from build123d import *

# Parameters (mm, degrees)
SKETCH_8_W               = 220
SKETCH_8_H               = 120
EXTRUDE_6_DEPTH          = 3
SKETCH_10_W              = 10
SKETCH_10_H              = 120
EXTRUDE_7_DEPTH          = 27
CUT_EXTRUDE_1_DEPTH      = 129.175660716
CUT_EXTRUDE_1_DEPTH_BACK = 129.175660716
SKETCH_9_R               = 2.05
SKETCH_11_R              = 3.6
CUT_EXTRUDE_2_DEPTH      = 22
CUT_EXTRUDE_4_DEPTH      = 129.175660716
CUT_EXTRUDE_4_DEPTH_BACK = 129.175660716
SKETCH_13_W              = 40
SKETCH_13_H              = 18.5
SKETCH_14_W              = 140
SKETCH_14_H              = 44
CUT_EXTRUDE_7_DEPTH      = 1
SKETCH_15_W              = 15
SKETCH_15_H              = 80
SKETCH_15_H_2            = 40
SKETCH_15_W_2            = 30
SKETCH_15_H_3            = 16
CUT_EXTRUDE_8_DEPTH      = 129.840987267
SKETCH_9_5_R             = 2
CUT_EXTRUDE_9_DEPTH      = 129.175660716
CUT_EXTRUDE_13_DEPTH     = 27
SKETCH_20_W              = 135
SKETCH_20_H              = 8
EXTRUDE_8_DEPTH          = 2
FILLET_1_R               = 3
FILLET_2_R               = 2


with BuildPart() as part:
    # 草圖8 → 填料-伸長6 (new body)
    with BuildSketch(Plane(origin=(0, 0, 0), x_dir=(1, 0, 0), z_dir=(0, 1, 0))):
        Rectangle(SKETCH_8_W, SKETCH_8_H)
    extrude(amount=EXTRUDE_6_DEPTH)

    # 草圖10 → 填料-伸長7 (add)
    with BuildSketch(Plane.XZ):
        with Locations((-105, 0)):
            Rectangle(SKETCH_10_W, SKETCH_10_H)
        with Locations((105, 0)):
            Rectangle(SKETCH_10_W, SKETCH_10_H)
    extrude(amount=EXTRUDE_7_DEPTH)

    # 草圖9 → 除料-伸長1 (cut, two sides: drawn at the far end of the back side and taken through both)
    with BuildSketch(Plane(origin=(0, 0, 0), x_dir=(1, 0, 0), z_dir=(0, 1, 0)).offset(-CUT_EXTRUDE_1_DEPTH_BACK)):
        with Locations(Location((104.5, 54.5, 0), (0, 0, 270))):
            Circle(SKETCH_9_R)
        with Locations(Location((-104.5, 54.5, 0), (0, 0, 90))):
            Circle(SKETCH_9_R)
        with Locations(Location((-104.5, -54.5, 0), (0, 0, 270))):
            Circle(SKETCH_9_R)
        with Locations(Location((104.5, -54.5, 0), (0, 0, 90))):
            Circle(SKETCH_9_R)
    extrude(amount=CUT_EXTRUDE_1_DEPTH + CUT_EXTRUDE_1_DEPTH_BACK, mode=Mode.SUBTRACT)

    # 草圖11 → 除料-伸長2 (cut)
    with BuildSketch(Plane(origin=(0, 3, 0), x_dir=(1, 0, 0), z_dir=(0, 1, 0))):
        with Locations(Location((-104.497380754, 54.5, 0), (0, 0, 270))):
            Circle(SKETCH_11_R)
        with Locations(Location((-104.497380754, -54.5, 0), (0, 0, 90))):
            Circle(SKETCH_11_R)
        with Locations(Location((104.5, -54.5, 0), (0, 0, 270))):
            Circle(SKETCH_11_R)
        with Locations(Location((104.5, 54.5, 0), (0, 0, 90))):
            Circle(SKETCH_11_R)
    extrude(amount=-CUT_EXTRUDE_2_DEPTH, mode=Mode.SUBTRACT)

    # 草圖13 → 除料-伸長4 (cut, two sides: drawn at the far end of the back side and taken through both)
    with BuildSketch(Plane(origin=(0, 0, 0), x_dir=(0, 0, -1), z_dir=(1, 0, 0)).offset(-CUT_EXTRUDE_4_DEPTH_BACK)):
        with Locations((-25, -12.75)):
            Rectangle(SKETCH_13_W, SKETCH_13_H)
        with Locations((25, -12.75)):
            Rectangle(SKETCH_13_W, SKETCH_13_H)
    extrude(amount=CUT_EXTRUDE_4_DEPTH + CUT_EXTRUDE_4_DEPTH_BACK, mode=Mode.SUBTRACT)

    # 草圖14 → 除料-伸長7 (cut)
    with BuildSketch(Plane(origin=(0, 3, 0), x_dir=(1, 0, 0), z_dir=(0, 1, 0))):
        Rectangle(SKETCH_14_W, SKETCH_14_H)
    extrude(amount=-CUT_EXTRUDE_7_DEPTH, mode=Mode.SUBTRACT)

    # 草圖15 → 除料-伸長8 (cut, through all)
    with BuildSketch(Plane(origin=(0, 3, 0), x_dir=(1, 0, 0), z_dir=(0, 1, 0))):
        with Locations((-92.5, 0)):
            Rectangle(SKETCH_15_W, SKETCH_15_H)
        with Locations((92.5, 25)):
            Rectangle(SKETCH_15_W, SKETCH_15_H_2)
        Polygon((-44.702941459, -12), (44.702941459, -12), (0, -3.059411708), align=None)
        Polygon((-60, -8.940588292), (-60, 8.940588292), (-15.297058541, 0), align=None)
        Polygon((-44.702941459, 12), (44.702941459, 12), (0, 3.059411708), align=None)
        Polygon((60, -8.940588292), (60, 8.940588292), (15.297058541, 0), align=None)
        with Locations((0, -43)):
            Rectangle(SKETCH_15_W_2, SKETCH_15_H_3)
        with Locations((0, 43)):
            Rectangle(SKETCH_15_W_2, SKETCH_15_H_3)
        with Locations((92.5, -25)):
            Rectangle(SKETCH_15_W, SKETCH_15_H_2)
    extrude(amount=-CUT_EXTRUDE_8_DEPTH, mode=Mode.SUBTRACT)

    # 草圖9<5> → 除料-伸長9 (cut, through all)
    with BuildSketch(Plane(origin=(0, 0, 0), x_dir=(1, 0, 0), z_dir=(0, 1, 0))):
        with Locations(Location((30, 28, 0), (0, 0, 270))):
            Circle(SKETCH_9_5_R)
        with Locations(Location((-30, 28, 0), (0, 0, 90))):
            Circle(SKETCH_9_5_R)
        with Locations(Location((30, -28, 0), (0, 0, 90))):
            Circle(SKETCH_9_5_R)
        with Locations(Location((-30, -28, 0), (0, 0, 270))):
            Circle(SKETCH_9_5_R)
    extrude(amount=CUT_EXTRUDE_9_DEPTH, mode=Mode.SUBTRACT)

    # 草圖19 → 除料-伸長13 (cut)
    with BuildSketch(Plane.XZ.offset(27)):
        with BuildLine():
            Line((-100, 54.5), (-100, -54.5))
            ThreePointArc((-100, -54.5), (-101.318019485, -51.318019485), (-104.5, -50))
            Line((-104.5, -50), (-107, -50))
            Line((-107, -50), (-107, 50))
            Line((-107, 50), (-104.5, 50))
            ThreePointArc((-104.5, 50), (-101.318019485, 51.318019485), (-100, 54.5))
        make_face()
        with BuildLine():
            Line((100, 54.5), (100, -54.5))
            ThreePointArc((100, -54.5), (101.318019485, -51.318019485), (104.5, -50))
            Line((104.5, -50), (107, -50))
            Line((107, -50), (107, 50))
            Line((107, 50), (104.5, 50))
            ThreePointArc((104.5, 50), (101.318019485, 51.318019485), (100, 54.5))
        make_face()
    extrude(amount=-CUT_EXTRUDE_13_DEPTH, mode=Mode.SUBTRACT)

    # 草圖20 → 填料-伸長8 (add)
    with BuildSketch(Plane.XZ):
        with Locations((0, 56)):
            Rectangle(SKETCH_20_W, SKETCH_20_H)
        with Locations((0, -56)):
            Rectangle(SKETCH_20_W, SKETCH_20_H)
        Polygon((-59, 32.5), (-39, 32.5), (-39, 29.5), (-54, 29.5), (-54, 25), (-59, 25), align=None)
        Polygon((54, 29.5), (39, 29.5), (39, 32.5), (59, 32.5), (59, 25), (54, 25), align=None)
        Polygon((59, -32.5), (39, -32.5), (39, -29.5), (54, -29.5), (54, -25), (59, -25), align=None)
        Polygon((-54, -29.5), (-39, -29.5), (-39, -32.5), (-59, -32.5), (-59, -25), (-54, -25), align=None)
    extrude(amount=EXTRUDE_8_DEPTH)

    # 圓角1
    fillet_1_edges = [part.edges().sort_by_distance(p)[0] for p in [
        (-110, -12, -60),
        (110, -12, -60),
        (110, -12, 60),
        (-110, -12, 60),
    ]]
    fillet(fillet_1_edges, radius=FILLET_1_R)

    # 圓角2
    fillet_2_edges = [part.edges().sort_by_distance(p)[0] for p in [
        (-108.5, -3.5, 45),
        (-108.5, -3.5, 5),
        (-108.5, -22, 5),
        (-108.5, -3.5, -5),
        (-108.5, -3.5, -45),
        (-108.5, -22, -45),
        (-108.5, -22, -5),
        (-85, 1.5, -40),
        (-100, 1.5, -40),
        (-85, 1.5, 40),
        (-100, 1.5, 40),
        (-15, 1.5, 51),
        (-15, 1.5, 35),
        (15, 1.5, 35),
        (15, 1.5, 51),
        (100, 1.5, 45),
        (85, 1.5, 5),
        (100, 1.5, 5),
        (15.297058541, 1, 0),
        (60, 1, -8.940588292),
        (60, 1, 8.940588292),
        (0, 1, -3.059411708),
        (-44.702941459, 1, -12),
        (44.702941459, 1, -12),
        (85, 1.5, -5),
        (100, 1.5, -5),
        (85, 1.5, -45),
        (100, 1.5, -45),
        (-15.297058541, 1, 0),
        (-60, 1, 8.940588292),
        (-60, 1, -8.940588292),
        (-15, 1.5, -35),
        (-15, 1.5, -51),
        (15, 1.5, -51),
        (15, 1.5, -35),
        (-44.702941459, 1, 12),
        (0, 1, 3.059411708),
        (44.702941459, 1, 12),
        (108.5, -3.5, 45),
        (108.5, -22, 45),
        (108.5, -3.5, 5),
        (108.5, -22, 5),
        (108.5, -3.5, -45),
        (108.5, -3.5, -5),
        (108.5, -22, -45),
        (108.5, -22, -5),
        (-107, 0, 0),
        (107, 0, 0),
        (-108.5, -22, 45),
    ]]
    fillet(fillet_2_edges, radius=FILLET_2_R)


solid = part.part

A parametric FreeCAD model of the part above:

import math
import FreeCAD as App
import Part
import Sketcher


def edges_at(feature, points):
    """Names of the edges that pass closest to the given points."""
    edges = feature.Shape.Edges
    near = lambda p: min(range(len(edges)), key=lambda i: edges[i].distToShape(Part.Vertex(*p))[0])
    return sorted({f"Edge{near(p) + 1}" for p in points})

doc = App.newDocument("Part")
params = doc.addObject("Spreadsheet::Sheet", "Params")
for row, (alias, value) in enumerate([
    ("sketch1_width", "220 mm"),
    ("sketch1_height", "120 mm"),
    ("pad1_length", "3 mm"),
    ("sketch2_width", "10 mm"),
    ("sketch2_height", "120 mm"),
    ("pad2_length", "27 mm"),
    ("sketch3_diameter", "4.1 mm"),
    ("sketch4_diameter", "7.2 mm"),
    ("pocket2_length", "22 mm"),
    ("sketch5_height", "40 mm"),
    ("sketch5_width", "18.5 mm"),
    ("sketch6_width", "140 mm"),
    ("sketch6_height", "44 mm"),
    ("pocket4_length", "1 mm"),
    ("sketch7_width", "15 mm"),
    ("sketch7_width2", "30 mm"),
    ("sketch7_height", "80 mm"),
    ("sketch7_height2", "40 mm"),
    ("sketch7_height3", "16 mm"),
    ("sketch8_diameter", "4 mm"),
    ("sketch9_radius", "4.5 mm"),
    ("sketch9_height", "109 mm"),
    ("sketch9_width", "2.5 mm"),
    ("pocket7_length", "27 mm"),
    ("sketch10_width", "135 mm"),
    ("sketch10_width2", "20 mm"),
    ("sketch10_width3", "5 mm"),
    ("sketch10_height", "8 mm"),
    ("sketch10_height2", "3 mm"),
    ("pad3_length", "2 mm"),
    ("fillet_radius", "3 mm"),
    ("fillet2_radius", "2 mm"),
], start=1):
    params.set(f"A{row}", alias)
    params.set(f"B{row}", "=" + value)
    params.setAlias(f"B{row}", alias)

body = doc.addObject("PartDesign::Body", "Body")

# Sketch on XZ plane
sketch1 = doc.addObject("Sketcher::SketchObject", "Sketch")
body.addObject(sketch1)
sketch1.AttachmentSupport = (doc.XZ_Plane, [""])
sketch1.MapMode = "FlatFace"
sketch1.addGeometry([
    Part.LineSegment(App.Vector(-110, -60, 0), App.Vector(-110, 60, 0)),
    Part.LineSegment(App.Vector(-110, 60, 0), App.Vector(110, 60, 0)),
    Part.LineSegment(App.Vector(110, 60, 0), App.Vector(110, -60, 0)),
    Part.LineSegment(App.Vector(110, -60, 0), App.Vector(-110, -60, 0)),
], False)
sketch1.addConstraint([
    Sketcher.Constraint("Coincident", 0, 2, 1, 1),
    Sketcher.Constraint("Coincident", 1, 2, 2, 1),
    Sketcher.Constraint("Coincident", 2, 2, 3, 1),
    Sketcher.Constraint("Coincident", 3, 2, 0, 1),
    Sketcher.Constraint("Vertical", 0),
    Sketcher.Constraint("Horizontal", 1),
    Sketcher.Constraint("Vertical", 2),
    Sketcher.Constraint("Horizontal", 3),
    Sketcher.Constraint("Symmetric", 0, 2, 2, 2, -1, 1),
    Sketcher.Constraint("DistanceX", 1, 1, 1, 2, 220.0),
    Sketcher.Constraint("DistanceY", 0, 1, 0, 2, 120.0),
])
sketch1.setExpression("Constraints[9]", "Params.sketch1_width")
sketch1.setExpression("Constraints[10]", "Params.sketch1_height")
pad1 = doc.addObject("PartDesign::Pad", "Pad")
body.addObject(pad1)
pad1.Profile = sketch1
pad1.setExpression("Length", "Params.pad1_length")
pad1.Reversed = True

# Sketch on XZ plane
sketch2 = doc.addObject("Sketcher::SketchObject", "Sketch001")
body.addObject(sketch2)
sketch2.AttachmentSupport = (doc.XZ_Plane, [""])
sketch2.MapMode = "FlatFace"
sketch2.addGeometry([
    Part.LineSegment(App.Vector(-110, 60, 0), App.Vector(-110, -60, 0)),  # 0
    Part.LineSegment(App.Vector(-110, -60, 0), App.Vector(-100, -60, 0)),  # 1
    Part.LineSegment(App.Vector(-100, -60, 0), App.Vector(-100, 60, 0)),  # 2
    Part.LineSegment(App.Vector(-100, 60, 0), App.Vector(-110, 60, 0)),  # 3
    Part.LineSegment(App.Vector(100, 60, 0), App.Vector(100, -60, 0)),  # 4
    Part.LineSegment(App.Vector(100, -60, 0), App.Vector(110, -60, 0)),  # 5
    Part.LineSegment(App.Vector(110, -60, 0), App.Vector(110, 60, 0)),  # 6
    Part.LineSegment(App.Vector(110, 60, 0), App.Vector(100, 60, 0)),  # 7
], False)
sketch2.addConstraint([
    Sketcher.Constraint("Coincident", 0, 2, 1, 1),
    Sketcher.Constraint("Coincident", 1, 2, 2, 1),
    Sketcher.Constraint("Coincident", 2, 2, 3, 1),
    Sketcher.Constraint("Coincident", 3, 2, 0, 1),
    Sketcher.Constraint("Coincident", 4, 2, 5, 1),
    Sketcher.Constraint("Coincident", 5, 2, 6, 1),
    Sketcher.Constraint("Coincident", 6, 2, 7, 1),
    Sketcher.Constraint("Coincident", 7, 2, 4, 1),
    Sketcher.Constraint("Vertical", 0),
    Sketcher.Constraint("Horizontal", 1),
    Sketcher.Constraint("Vertical", 2),
    Sketcher.Constraint("Horizontal", 3),
    Sketcher.Constraint("Vertical", 4),
    Sketcher.Constraint("Horizontal", 5),
    Sketcher.Constraint("Vertical", 6),
    Sketcher.Constraint("Horizontal", 7),
    Sketcher.Constraint("Symmetric", 2, 2, 4, 2, -1, 1),
    Sketcher.Constraint("Symmetric", 0, 2, 6, 2, -1, 1),
    Sketcher.Constraint("Horizontal", 1, 2, 4, 2),
    Sketcher.Constraint("DistanceX", 1, 1, 1, 2, 10.0),
    Sketcher.Constraint("DistanceY", 0, 2, 0, 1, 120.0),
    Sketcher.Constraint("DistanceX", 0, 2, -1, 1, 110.0),
])
sketch2.setExpression("Constraints[19]", "Params.sketch2_width")
sketch2.setExpression("Constraints[20]", "Params.sketch2_height")
pad2 = doc.addObject("PartDesign::Pad", "Pad001")
body.addObject(pad2)
pad2.Profile = sketch2
pad2.setExpression("Length", "Params.pad2_length")

# Sketch on XZ plane
sketch3 = doc.addObject("Sketcher::SketchObject", "Sketch002")
body.addObject(sketch3)
sketch3.AttachmentSupport = (doc.XZ_Plane, [""])
sketch3.MapMode = "FlatFace"
sketch3.addGeometry([
    Part.Circle(App.Vector(104.5, -54.5, 0), App.Vector(0, 0, 1), 2),
    Part.Circle(App.Vector(-104.5, -54.5, 0), App.Vector(0, 0, 1), 2),
    Part.Circle(App.Vector(-104.5, 54.5, 0), App.Vector(0, 0, 1), 2),
    Part.Circle(App.Vector(104.5, 54.5, 0), App.Vector(0, 0, 1), 2),
], False)
sketch3.addConstraint([
    Sketcher.Constraint("Equal", 0, 1),
    Sketcher.Constraint("Equal", 1, 2),
    Sketcher.Constraint("Equal", 2, 3),
    Sketcher.Constraint("Symmetric", 0, 3, 2, 3, -1, 1),
    Sketcher.Constraint("Symmetric", 1, 3, 3, 3, -1, 1),
    Sketcher.Constraint("Symmetric", 0, 3, 1, 3, -2),
    Sketcher.Constraint("Diameter", 0, 4.1),
    Sketcher.Constraint("DistanceX", 1, 3, 0, 3, 209.0),
    Sketcher.Constraint("DistanceY", 1, 3, 2, 3, 109.0),
])
sketch3.setExpression("Constraints[6]", "Params.sketch3_diameter")
pocket1 = doc.addObject("PartDesign::Pocket", "Pocket")
body.addObject(pocket1)
pocket1.Profile = sketch3
pocket1.Type = "ThroughAll"
pocket1.Midplane = True

# Sketch on XZ plane
sketch4 = doc.addObject("Sketcher::SketchObject", "Sketch003")
body.addObject(sketch4)
sketch4.AttachmentSupport = (doc.XZ_Plane, [""])
sketch4.MapMode = "FlatFace"
sketch4.AttachmentOffset = App.Placement(App.Vector(0, 0, -3), App.Rotation())
sketch4.addGeometry([
    Part.Circle(App.Vector(-104.5, -54.5, 0), App.Vector(0, 0, 1), 3.6),
    Part.Circle(App.Vector(-104.5, 54.5, 0), App.Vector(0, 0, 1), 3.6),
    Part.Circle(App.Vector(104.5, 54.5, 0), App.Vector(0, 0, 1), 3.6),
    Part.Circle(App.Vector(104.5, -54.5, 0), App.Vector(0, 0, 1), 3.6),
], False)
sketch4.addConstraint([
    Sketcher.Constraint("Equal", 0, 1),
    Sketcher.Constraint("Equal", 1, 2),
    Sketcher.Constraint("Equal", 2, 3),
    Sketcher.Constraint("Symmetric", 0, 3, 1, 3, -1),
    Sketcher.Constraint("Symmetric", 2, 3, 3, 3, -1),
    Sketcher.Constraint("Horizontal", 1, 3, 2, 3),
    Sketcher.Constraint("Diameter", 0, 7.2),
    Sketcher.Constraint("DistanceY", 0, 3, 1, 3, 109.0),
    Sketcher.Constraint("DistanceX", -1, 1, 2, 3, 104.5),
    Sketcher.Constraint("DistanceX", 0, 3, -1, 1, 104.497381),
])
sketch4.setExpression("Constraints[6]", "Params.sketch4_diameter")
pocket2 = doc.addObject("PartDesign::Pocket", "Pocket001")
body.addObject(pocket2)
pocket2.Profile = sketch4
pocket2.setExpression("Length", "Params.pocket2_length")
pocket2.Reversed = True

# Sketch on YZ plane
sketch5 = doc.addObject("Sketcher::SketchObject", "Sketch004")
body.addObject(sketch5)
sketch5.AttachmentSupport = (doc.YZ_Plane, [""])
sketch5.MapMode = "FlatFace"
sketch5.addGeometry([
    Part.LineSegment(App.Vector(-4, 45, 0), App.Vector(-22, 45, 0)),  # 0
    Part.LineSegment(App.Vector(-22, 45, 0), App.Vector(-22, 5, 0)),  # 1
    Part.LineSegment(App.Vector(-22, 5, 0), App.Vector(-4, 5, 0)),  # 2
    Part.LineSegment(App.Vector(-4, 5, 0), App.Vector(-4, 45, 0)),  # 3
    Part.LineSegment(App.Vector(-4, -5, 0), App.Vector(-22, -5, 0)),  # 4
    Part.LineSegment(App.Vector(-22, -5, 0), App.Vector(-22, -45, 0)),  # 5
    Part.LineSegment(App.Vector(-22, -45, 0), App.Vector(-4, -45, 0)),  # 6
    Part.LineSegment(App.Vector(-4, -45, 0), App.Vector(-4, -5, 0)),  # 7
], False)
sketch5.addConstraint([
    Sketcher.Constraint("Coincident", 0, 2, 1, 1),
    Sketcher.Constraint("Coincident", 1, 2, 2, 1),
    Sketcher.Constraint("Coincident", 2, 2, 3, 1),
    Sketcher.Constraint("Coincident", 3, 2, 0, 1),
    Sketcher.Constraint("Coincident", 4, 2, 5, 1),
    Sketcher.Constraint("Coincident", 5, 2, 6, 1),
    Sketcher.Constraint("Coincident", 6, 2, 7, 1),
    Sketcher.Constraint("Coincident", 7, 2, 4, 1),
    Sketcher.Constraint("Horizontal", 0),
    Sketcher.Constraint("Vertical", 1),
    Sketcher.Constraint("Horizontal", 2),
    Sketcher.Constraint("Vertical", 3),
    Sketcher.Constraint("Horizontal", 4),
    Sketcher.Constraint("Vertical", 5),
    Sketcher.Constraint("Horizontal", 6),
    Sketcher.Constraint("Vertical", 7),
    Sketcher.Constraint("Symmetric", 1, 2, 4, 2, -1),
    Sketcher.Constraint("Symmetric", 3, 2, 6, 2, -1),
    Sketcher.Constraint("DistanceY", 1, 2, 1, 1, 40.0),
    Sketcher.Constraint("DistanceX", 0, 2, 0, 1, 18.5),
    Sketcher.Constraint("DistanceX", 0, 2, -1, 1, 22.0),
    Sketcher.Constraint("DistanceY", -1, 1, 0, 2, 45.0),
])
sketch5.setExpression("Constraints[18]", "Params.sketch5_height")
sketch5.setExpression("Constraints[19]", "Params.sketch5_width")
pocket3 = doc.addObject("PartDesign::Pocket", "Pocket002")
body.addObject(pocket3)
pocket3.Profile = sketch5
pocket3.Type = "ThroughAll"
pocket3.Midplane = True

# Sketch on XZ plane
sketch6 = doc.addObject("Sketcher::SketchObject", "Sketch005")
body.addObject(sketch6)
sketch6.AttachmentSupport = (doc.XZ_Plane, [""])
sketch6.MapMode = "FlatFace"
sketch6.AttachmentOffset = App.Placement(App.Vector(0, 0, -3), App.Rotation())
sketch6.addGeometry([
    Part.LineSegment(App.Vector(-70, -22, 0), App.Vector(-70, 22, 0)),
    Part.LineSegment(App.Vector(-70, 22, 0), App.Vector(70, 22, 0)),
    Part.LineSegment(App.Vector(70, 22, 0), App.Vector(70, -22, 0)),
    Part.LineSegment(App.Vector(70, -22, 0), App.Vector(-70, -22, 0)),
], False)
sketch6.addConstraint([
    Sketcher.Constraint("Coincident", 0, 2, 1, 1),
    Sketcher.Constraint("Coincident", 1, 2, 2, 1),
    Sketcher.Constraint("Coincident", 2, 2, 3, 1),
    Sketcher.Constraint("Coincident", 3, 2, 0, 1),
    Sketcher.Constraint("Vertical", 0),
    Sketcher.Constraint("Horizontal", 1),
    Sketcher.Constraint("Vertical", 2),
    Sketcher.Constraint("Horizontal", 3),
    Sketcher.Constraint("Symmetric", 0, 2, 2, 2, -1, 1),
    Sketcher.Constraint("DistanceX", 1, 1, 1, 2, 140.0),
    Sketcher.Constraint("DistanceY", 0, 1, 0, 2, 44.0),
])
sketch6.setExpression("Constraints[9]", "Params.sketch6_width")
sketch6.setExpression("Constraints[10]", "Params.sketch6_height")
pocket4 = doc.addObject("PartDesign::Pocket", "Pocket003")
body.addObject(pocket4)
pocket4.Profile = sketch6
pocket4.setExpression("Length", "Params.pocket4_length")
pocket4.Reversed = True

# Sketch on XZ plane
sketch7 = doc.addObject("Sketcher::SketchObject", "Sketch006")
body.addObject(sketch7)
sketch7.AttachmentSupport = (doc.XZ_Plane, [""])
sketch7.MapMode = "FlatFace"
sketch7.AttachmentOffset = App.Placement(App.Vector(0, 0, -3), App.Rotation())
sketch7.addGeometry([
    Part.LineSegment(App.Vector(-100, -40, 0), App.Vector(-100, 40, 0)),  # 0
    Part.LineSegment(App.Vector(-100, 40, 0), App.Vector(-85, 40, 0)),  # 1
    Part.LineSegment(App.Vector(-85, 40, 0), App.Vector(-85, -40, 0)),  # 2
    Part.LineSegment(App.Vector(-85, -40, 0), App.Vector(-100, -40, 0)),  # 3
    Part.LineSegment(App.Vector(85, -45, 0), App.Vector(85, -5, 0)),  # 4
    Part.LineSegment(App.Vector(85, -5, 0), App.Vector(100, -5, 0)),  # 5
    Part.LineSegment(App.Vector(100, -5, 0), App.Vector(100, -45, 0)),  # 6
    Part.LineSegment(App.Vector(100, -45, 0), App.Vector(85, -45, 0)),  # 7
    Part.LineSegment(App.Vector(-45, 12, 0), App.Vector(45, 12, 0)),  # 8
    Part.LineSegment(App.Vector(45, 12, 0), App.Vector(0, 3, 0)),  # 9
    Part.LineSegment(App.Vector(0, 3, 0), App.Vector(-45, 12, 0)),  # 10
    Part.LineSegment(App.Vector(-60, -9, 0), App.Vector(-60, 9, 0)),  # 11
    Part.LineSegment(App.Vector(-60, 9, 0), App.Vector(-15, 0, 0)),  # 12
    Part.LineSegment(App.Vector(-15, 0, 0), App.Vector(-60, -9, 0)),  # 13
    Part.LineSegment(App.Vector(45, -12, 0), App.Vector(-45, -12, 0)),  # 14
    Part.LineSegment(App.Vector(-45, -12, 0), App.Vector(0, -3, 0)),  # 15
    Part.LineSegment(App.Vector(0, -3, 0), App.Vector(45, -12, 0)),  # 16
    Part.LineSegment(App.Vector(60, 9, 0), App.Vector(60, -9, 0)),  # 17
    Part.LineSegment(App.Vector(60, -9, 0), App.Vector(15, 0, 0)),  # 18
    Part.LineSegment(App.Vector(15, 0, 0), App.Vector(60, 9, 0)),  # 19
    Part.LineSegment(App.Vector(-15, 35, 0), App.Vector(-15, 51, 0)),  # 20
    Part.LineSegment(App.Vector(-15, 51, 0), App.Vector(15, 51, 0)),  # 21
    Part.LineSegment(App.Vector(15, 51, 0), App.Vector(15, 35, 0)),  # 22
    Part.LineSegment(App.Vector(15, 35, 0), App.Vector(-15, 35, 0)),  # 23
    Part.LineSegment(App.Vector(-15, -51, 0), App.Vector(-15, -35, 0)),  # 24
    Part.LineSegment(App.Vector(-15, -35, 0), App.Vector(15, -35, 0)),  # 25
    Part.LineSegment(App.Vector(15, -35, 0), App.Vector(15, -51, 0)),  # 26
    Part.LineSegment(App.Vector(15, -51, 0), App.Vector(-15, -51, 0)),  # 27
    Part.LineSegment(App.Vector(85, 5, 0), App.Vector(85, 45, 0)),  # 28
    Part.LineSegment(App.Vector(85, 45, 0), App.Vector(100, 45, 0)),  # 29
    Part.LineSegment(App.Vector(100, 45, 0), App.Vector(100, 5, 0)),  # 30
    Part.LineSegment(App.Vector(100, 5, 0), App.Vector(85, 5, 0)),  # 31
], False)
sketch7.addConstraint([
    Sketcher.Constraint("Coincident", 0, 2, 1, 1),
    Sketcher.Constraint("Coincident", 1, 2, 2, 1),
    Sketcher.Constraint("Coincident", 2, 2, 3, 1),
    Sketcher.Constraint("Coincident", 3, 2, 0, 1),
    Sketcher.Constraint("Coincident", 4, 2, 5, 1),
    Sketcher.Constraint("Coincident", 5, 2, 6, 1),
    Sketcher.Constraint("Coincident", 6, 2, 7, 1),
    Sketcher.Constraint("Coincident", 7, 2, 4, 1),
    Sketcher.Constraint("Coincident", 8, 2, 9, 1),
    Sketcher.Constraint("Coincident", 9, 2, 10, 1),
    Sketcher.Constraint("Coincident", 10, 2, 8, 1),
    Sketcher.Constraint("Coincident", 11, 2, 12, 1),
    Sketcher.Constraint("Coincident", 12, 2, 13, 1),
    Sketcher.Constraint("Coincident", 13, 2, 11, 1),
    Sketcher.Constraint("Coincident", 14, 2, 15, 1),
    Sketcher.Constraint("Coincident", 15, 2, 16, 1),
    Sketcher.Constraint("Coincident", 16, 2, 14, 1),
    Sketcher.Constraint("Coincident", 17, 2, 18, 1),
    Sketcher.Constraint("Coincident", 18, 2, 19, 1),
    Sketcher.Constraint("Coincident", 19, 2, 17, 1),
    Sketcher.Constraint("Coincident", 20, 2, 21, 1),
    Sketcher.Constraint("Coincident", 21, 2, 22, 1),
    Sketcher.Constraint("Coincident", 22, 2, 23, 1),
    Sketcher.Constraint("Coincident", 23, 2, 20, 1),
    Sketcher.Constraint("Coincident", 24, 2, 25, 1),
    Sketcher.Constraint("Coincident", 25, 2, 26, 1),
    Sketcher.Constraint("Coincident", 26, 2, 27, 1),
    Sketcher.Constraint("Coincident", 27, 2, 24, 1),
    Sketcher.Constraint("Coincident", 28, 2, 29, 1),
    Sketcher.Constraint("Coincident", 29, 2, 30, 1),
    Sketcher.Constraint("Coincident", 30, 2, 31, 1),
    Sketcher.Constraint("Coincident", 31, 2, 28, 1),
    Sketcher.Constraint("Vertical", 0),
    Sketcher.Constraint("Horizontal", 1),
    Sketcher.Constraint("Vertical", 2),
    Sketcher.Constraint("Horizontal", 3),
    Sketcher.Constraint("Vertical", 4),
    Sketcher.Constraint("Horizontal", 5),
    Sketcher.Constraint("Vertical", 6),
    Sketcher.Constraint("Horizontal", 7),
    Sketcher.Constraint("Horizontal", 8),
    Sketcher.Constraint("Vertical", 11),
    Sketcher.Constraint("Horizontal", 14),
    Sketcher.Constraint("Vertical", 17),
    Sketcher.Constraint("Vertical", 20),
    Sketcher.Constraint("Horizontal", 21),
    Sketcher.Constraint("Vertical", 22),
    Sketcher.Constraint("Horizontal", 23),
    Sketcher.Constraint("Vertical", 24),
    Sketcher.Constraint("Horizontal", 25),
    Sketcher.Constraint("Vertical", 26),
    Sketcher.Constraint("Horizontal", 27),
    Sketcher.Constraint("Vertical", 28),
    Sketcher.Constraint("Horizontal", 29),
    Sketcher.Constraint("Vertical", 30),
    Sketcher.Constraint("Horizontal", 31),
    Sketcher.Constraint("Symmetric", 8, 2, 14, 2, -1, 1),
    Sketcher.Constraint("Symmetric", 9, 2, 15, 2, -1, 1),
    Sketcher.Constraint("Symmetric", 11, 2, 17, 2, -1, 1),
    Sketcher.Constraint("Symmetric", 12, 2, 18, 2, -1, 1),
    Sketcher.Constraint("Symmetric", 22, 2, 24, 2, -1, 1),
    Sketcher.Constraint("Symmetric", 20, 2, 26, 2, -1, 1),
    Sketcher.Constraint("Symmetric", 7, 2, 28, 2, -1),
    Sketcher.Constraint("Symmetric", 5, 2, 30, 2, -1),
    Sketcher.Constraint("PointOnObject", 9, 2, -2),
    Sketcher.Constraint("PointOnObject", 12, 2, -1),
    Sketcher.Constraint("Parallel", 10, 12),
    Sketcher.Constraint("Parallel", 9, 13),
    Sketcher.Constraint("Parallel", 12, 16),
    Sketcher.Constraint("Parallel", 15, 19),
    Sketcher.Constraint("Horizontal", 13, 2, 17, 2),
    Sketcher.Constraint("Vertical", 23, 2, 24, 2),
    Sketcher.Constraint("Equal", 3, 5),
    Sketcher.Constraint("Equal", 10, 12),
    Sketcher.Constraint("DistanceX", 1, 1, 1, 2, 15.0),
    Sketcher.Constraint("DistanceX", 21, 1, 21, 2, 30.0),
    Sketcher.Constraint("DistanceY", 0, 1, 0, 2, 80.0),
    Sketcher.Constraint("DistanceY", 4, 1, 4, 2, 40.0),
    Sketcher.Constraint("DistanceY", 20, 1, 20, 2, 16.0),
    Sketcher.Constraint("DistanceX", 0, 2, -1, 1, 100.0),
    Sketcher.Constraint("DistanceY", -1, 1, 0, 2, 40.0),
    Sketcher.Constraint("DistanceX", -1, 1, 4, 2, 85.0),
    Sketcher.Constraint("DistanceY", 4, 2, -1, 1, 5.0),
    Sketcher.Constraint("DistanceY", -1, 1, 8, 2, 12.0),
    Sketcher.Constraint("DistanceX", 11, 2, -1, 1, 60.0),
    Sketcher.Constraint("DistanceY", -1, 1, 20, 2, 51.0),
    Sketcher.Constraint("DistanceX", 8, 1, 8, 2, 89.405883),
    Sketcher.Constraint("DistanceY", 11, 1, 11, 2, 17.881177),
])
sketch7.setExpression("Constraints[74]", "Params.sketch7_width")
sketch7.setExpression("Constraints[75]", "Params.sketch7_width2")
sketch7.setExpression("Constraints[76]", "Params.sketch7_height")
sketch7.setExpression("Constraints[77]", "Params.sketch7_height2")
sketch7.setExpression("Constraints[78]", "Params.sketch7_height3")
pocket5 = doc.addObject("PartDesign::Pocket", "Pocket004")
body.addObject(pocket5)
pocket5.Profile = sketch7
pocket5.Type = "ThroughAll"
pocket5.Reversed = True

# Sketch on XZ plane
sketch8 = doc.addObject("Sketcher::SketchObject", "Sketch007")
body.addObject(sketch8)
sketch8.AttachmentSupport = (doc.XZ_Plane, [""])
sketch8.MapMode = "FlatFace"
sketch8.addGeometry([
    Part.Circle(App.Vector(30, -28, 0), App.Vector(0, 0, 1), 2),
    Part.Circle(App.Vector(-30, -28, 0), App.Vector(0, 0, 1), 2),
    Part.Circle(App.Vector(30, 28, 0), App.Vector(0, 0, 1), 2),
    Part.Circle(App.Vector(-30, 28, 0), App.Vector(0, 0, 1), 2),
], False)
sketch8.addConstraint([
    Sketcher.Constraint("Equal", 0, 1),
    Sketcher.Constraint("Equal", 1, 2),
    Sketcher.Constraint("Equal", 2, 3),
    Sketcher.Constraint("Symmetric", 1, 3, 2, 3, -1, 1),
    Sketcher.Constraint("Symmetric", 0, 3, 3, 3, -1, 1),
    Sketcher.Constraint("Symmetric", 0, 3, 1, 3, -2),
    Sketcher.Constraint("Diameter", 0, 4.0),
    Sketcher.Constraint("DistanceX", -1, 1, 0, 3, 30.0),
    Sketcher.Constraint("DistanceY", 0, 3, -1, 1, 28.0),
])
sketch8.setExpression("Constraints[6]", "Params.sketch8_diameter")
pocket6 = doc.addObject("PartDesign::Pocket", "Pocket005")
body.addObject(pocket6)
pocket6.Profile = sketch8
pocket6.Type = "ThroughAll"

# Sketch on XZ plane
sketch9 = doc.addObject("Sketcher::SketchObject", "Sketch008")
body.addObject(sketch9)
sketch9.AttachmentSupport = (doc.XZ_Plane, [""])
sketch9.MapMode = "FlatFace"
sketch9.AttachmentOffset = App.Placement(App.Vector(0, 0, 27), App.Rotation())
sketch9.addGeometry([
    Part.LineSegment(App.Vector(-100, -54.5, 0), App.Vector(-100, 54.5, 0)),  # 0
    Part.ArcOfCircle(Part.Circle(App.Vector(-104.5, 54.5, 0), App.Vector(0, 0, 1), 4.5), math.radians(-90), math.radians(0)),  # 1
    Part.LineSegment(App.Vector(-104.5, 50, 0), App.Vector(-107, 50, 0)),  # 2
    Part.LineSegment(App.Vector(-107, 50, 0), App.Vector(-107, -50, 0)),  # 3
    Part.LineSegment(App.Vector(-107, -50, 0), App.Vector(-104.5, -50, 0)),  # 4
    Part.ArcOfCircle(Part.Circle(App.Vector(-104.5, -54.5, 0), App.Vector(0, 0, 1), 4.5), math.radians(0), math.radians(90)),  # 5
    Part.LineSegment(App.Vector(100, 54.5, 0), App.Vector(100, -54.5, 0)),  # 6
    Part.ArcOfCircle(Part.Circle(App.Vector(104.5, -54.5, 0), App.Vector(0, 0, 1), 4.5), math.radians(90), math.radians(180)),  # 7
    Part.LineSegment(App.Vector(104.5, -50, 0), App.Vector(107, -50, 0)),  # 8
    Part.LineSegment(App.Vector(107, -50, 0), App.Vector(107, 50, 0)),  # 9
    Part.LineSegment(App.Vector(107, 50, 0), App.Vector(104.5, 50, 0)),  # 10
    Part.ArcOfCircle(Part.Circle(App.Vector(104.5, 54.5, 0), App.Vector(0, 0, 1), 4.5), math.radians(-180), math.radians(-90)),  # 11
], False)
sketch9.addConstraint([
    Sketcher.Constraint("Tangent", 0, 2, 1, 2),
    Sketcher.Constraint("Tangent", 1, 1, 2, 1),
    Sketcher.Constraint("Coincident", 2, 2, 3, 1),
    Sketcher.Constraint("Coincident", 3, 2, 4, 1),
    Sketcher.Constraint("Tangent", 4, 2, 5, 2),
    Sketcher.Constraint("Tangent", 5, 1, 0, 1),
    Sketcher.Constraint("Tangent", 6, 2, 7, 2),
    Sketcher.Constraint("Tangent", 7, 1, 8, 1),
    Sketcher.Constraint("Coincident", 8, 2, 9, 1),
    Sketcher.Constraint("Coincident", 9, 2, 10, 1),
    Sketcher.Constraint("Tangent", 10, 2, 11, 2),
    Sketcher.Constraint("Tangent", 11, 1, 6, 1),
    Sketcher.Constraint("Vertical", 0),
    Sketcher.Constraint("Horizontal", 2),
    Sketcher.Constraint("Vertical", 3),
    Sketcher.Constraint("Horizontal", 4),
    Sketcher.Constraint("Vertical", 6),
    Sketcher.Constraint("Horizontal", 8),
    Sketcher.Constraint("Vertical", 9),
    Sketcher.Constraint("Horizontal", 10),
    Sketcher.Constraint("Equal", 1, 5),
    Sketcher.Constraint("Equal", 5, 7),
    Sketcher.Constraint("Equal", 7, 11),
    Sketcher.Constraint("Symmetric", 1, 3, 7, 3, -1, 1),
    Sketcher.Constraint("Symmetric", 3, 2, 9, 2, -1, 1),
    Sketcher.Constraint("Horizontal", 5, 3, 7, 3),
    Sketcher.Constraint("Radius", 1, 4.5),
    Sketcher.Constraint("DistanceY", 0, 1, 0, 2, 109.0),
    Sketcher.Constraint("DistanceX", 2, 2, 2, 1, 2.5),
    Sketcher.Constraint("DistanceX", 0, 2, -1, 1, 100.0),
])
sketch9.setExpression("Constraints[26]", "Params.sketch9_radius")
sketch9.setExpression("Constraints[27]", "Params.sketch9_height")
sketch9.setExpression("Constraints[28]", "Params.sketch9_width")
pocket7 = doc.addObject("PartDesign::Pocket", "Pocket006")
body.addObject(pocket7)
pocket7.Profile = sketch9
pocket7.setExpression("Length", "Params.pocket7_length")

# Sketch on XZ plane
sketch10 = doc.addObject("Sketcher::SketchObject", "Sketch009")
body.addObject(sketch10)
sketch10.AttachmentSupport = (doc.XZ_Plane, [""])
sketch10.MapMode = "FlatFace"
sketch10.addGeometry([
    Part.LineSegment(App.Vector(-67.5, 60, 0), App.Vector(-67.5, 52, 0)),  # 0
    Part.LineSegment(App.Vector(-67.5, 52, 0), App.Vector(67.5, 52, 0)),  # 1
    Part.LineSegment(App.Vector(67.5, 52, 0), App.Vector(67.5, 60, 0)),  # 2
    Part.LineSegment(App.Vector(67.5, 60, 0), App.Vector(-67.5, 60, 0)),  # 3
    Part.LineSegment(App.Vector(-67.5, -52, 0), App.Vector(-67.5, -60, 0)),  # 4
    Part.LineSegment(App.Vector(-67.5, -60, 0), App.Vector(67.5, -60, 0)),  # 5
    Part.LineSegment(App.Vector(67.5, -60, 0), App.Vector(67.5, -52, 0)),  # 6
    Part.LineSegment(App.Vector(67.5, -52, 0), App.Vector(-67.5, -52, 0)),  # 7
    Part.LineSegment(App.Vector(-39, 32.5, 0), App.Vector(-59, 32.5, 0)),  # 8
    Part.LineSegment(App.Vector(-59, 32.5, 0), App.Vector(-59, 25, 0)),  # 9
    Part.LineSegment(App.Vector(-59, 25, 0), App.Vector(-54, 25, 0)),  # 10
    Part.LineSegment(App.Vector(-54, 25, 0), App.Vector(-54, 29.5, 0)),  # 11
    Part.LineSegment(App.Vector(-54, 29.5, 0), App.Vector(-39, 29.5, 0)),  # 12
    Part.LineSegment(App.Vector(-39, 29.5, 0), App.Vector(-39, 32.5, 0)),  # 13
    Part.LineSegment(App.Vector(39, 29.5, 0), App.Vector(54, 29.5, 0)),  # 14
    Part.LineSegment(App.Vector(54, 29.5, 0), App.Vector(54, 25, 0)),  # 15
    Part.LineSegment(App.Vector(54, 25, 0), App.Vector(59, 25, 0)),  # 16
    Part.LineSegment(App.Vector(59, 25, 0), App.Vector(59, 32.5, 0)),  # 17
    Part.LineSegment(App.Vector(59, 32.5, 0), App.Vector(39, 32.5, 0)),  # 18
    Part.LineSegment(App.Vector(39, 32.5, 0), App.Vector(39, 29.5, 0)),  # 19
    Part.LineSegment(App.Vector(39, -32.5, 0), App.Vector(59, -32.5, 0)),  # 20
    Part.LineSegment(App.Vector(59, -32.5, 0), App.Vector(59, -25, 0)),  # 21
    Part.LineSegment(App.Vector(59, -25, 0), App.Vector(54, -25, 0)),  # 22
    Part.LineSegment(App.Vector(54, -25, 0), App.Vector(54, -29.5, 0)),  # 23
    Part.LineSegment(App.Vector(54, -29.5, 0), App.Vector(39, -29.5, 0)),  # 24
    Part.LineSegment(App.Vector(39, -29.5, 0), App.Vector(39, -32.5, 0)),  # 25
    Part.LineSegment(App.Vector(-39, -29.5, 0), App.Vector(-54, -29.5, 0)),  # 26
    Part.LineSegment(App.Vector(-54, -29.5, 0), App.Vector(-54, -25, 0)),  # 27
    Part.LineSegment(App.Vector(-54, -25, 0), App.Vector(-59, -25, 0)),  # 28
    Part.LineSegment(App.Vector(-59, -25, 0), App.Vector(-59, -32.5, 0)),  # 29
    Part.LineSegment(App.Vector(-59, -32.5, 0), App.Vector(-39, -32.5, 0)),  # 30
    Part.LineSegment(App.Vector(-39, -32.5, 0), App.Vector(-39, -29.5, 0)),  # 31
], False)
sketch10.addConstraint([
    Sketcher.Constraint("Coincident", 0, 2, 1, 1),
    Sketcher.Constraint("Coincident", 1, 2, 2, 1),
    Sketcher.Constraint("Coincident", 2, 2, 3, 1),
    Sketcher.Constraint("Coincident", 3, 2, 0, 1),
    Sketcher.Constraint("Coincident", 4, 2, 5, 1),
    Sketcher.Constraint("Coincident", 5, 2, 6, 1),
    Sketcher.Constraint("Coincident", 6, 2, 7, 1),
    Sketcher.Constraint("Coincident", 7, 2, 4, 1),
    Sketcher.Constraint("Coincident", 8, 2, 9, 1),
    Sketcher.Constraint("Coincident", 9, 2, 10, 1),
    Sketcher.Constraint("Coincident", 10, 2, 11, 1),
    Sketcher.Constraint("Coincident", 11, 2, 12, 1),
    Sketcher.Constraint("Coincident", 12, 2, 13, 1),
    Sketcher.Constraint("Coincident", 13, 2, 8, 1),
    Sketcher.Constraint("Coincident", 14, 2, 15, 1),
    Sketcher.Constraint("Coincident", 15, 2, 16, 1),
    Sketcher.Constraint("Coincident", 16, 2, 17, 1),
    Sketcher.Constraint("Coincident", 17, 2, 18, 1),
    Sketcher.Constraint("Coincident", 18, 2, 19, 1),
    Sketcher.Constraint("Coincident", 19, 2, 14, 1),
    Sketcher.Constraint("Coincident", 20, 2, 21, 1),
    Sketcher.Constraint("Coincident", 21, 2, 22, 1),
    Sketcher.Constraint("Coincident", 22, 2, 23, 1),
    Sketcher.Constraint("Coincident", 23, 2, 24, 1),
    Sketcher.Constraint("Coincident", 24, 2, 25, 1),
    Sketcher.Constraint("Coincident", 25, 2, 20, 1),
    Sketcher.Constraint("Coincident", 26, 2, 27, 1),
    Sketcher.Constraint("Coincident", 27, 2, 28, 1),
    Sketcher.Constraint("Coincident", 28, 2, 29, 1),
    Sketcher.Constraint("Coincident", 29, 2, 30, 1),
    Sketcher.Constraint("Coincident", 30, 2, 31, 1),
    Sketcher.Constraint("Coincident", 31, 2, 26, 1),
    Sketcher.Constraint("Vertical", 0),
    Sketcher.Constraint("Horizontal", 1),
    Sketcher.Constraint("Vertical", 2),
    Sketcher.Constraint("Horizontal", 3),
    Sketcher.Constraint("Vertical", 4),
    Sketcher.Constraint("Horizontal", 5),
    Sketcher.Constraint("Vertical", 6),
    Sketcher.Constraint("Horizontal", 7),
    Sketcher.Constraint("Horizontal", 8),
    Sketcher.Constraint("Vertical", 9),
    Sketcher.Constraint("Horizontal", 10),
    Sketcher.Constraint("Vertical", 11),
    Sketcher.Constraint("Horizontal", 12),
    Sketcher.Constraint("Vertical", 13),
    Sketcher.Constraint("Horizontal", 14),
    Sketcher.Constraint("Vertical", 15),
    Sketcher.Constraint("Horizontal", 16),
    Sketcher.Constraint("Vertical", 17),
    Sketcher.Constraint("Horizontal", 18),
    Sketcher.Constraint("Vertical", 19),
    Sketcher.Constraint("Horizontal", 20),
    Sketcher.Constraint("Vertical", 21),
    Sketcher.Constraint("Horizontal", 22),
    Sketcher.Constraint("Vertical", 23),
    Sketcher.Constraint("Horizontal", 24),
    Sketcher.Constraint("Vertical", 25),
    Sketcher.Constraint("Horizontal", 26),
    Sketcher.Constraint("Vertical", 27),
    Sketcher.Constraint("Horizontal", 28),
    Sketcher.Constraint("Vertical", 29),
    Sketcher.Constraint("Horizontal", 30),
    Sketcher.Constraint("Vertical", 31),
    Sketcher.Constraint("Symmetric", 2, 2, 4, 2, -1, 1),
    Sketcher.Constraint("Symmetric", 0, 2, 6, 2, -1, 1),
    Sketcher.Constraint("Symmetric", 8, 2, 20, 2, -1, 1),
    Sketcher.Constraint("Symmetric", 10, 2, 22, 2, -1, 1),
    Sketcher.Constraint("Symmetric", 12, 2, 24, 2, -1, 1),
    Sketcher.Constraint("Symmetric", 14, 2, 26, 2, -1, 1),
    Sketcher.Constraint("Symmetric", 16, 2, 28, 2, -1, 1),
    Sketcher.Constraint("Symmetric", 18, 2, 30, 2, -1, 1),
    Sketcher.Constraint("Symmetric", 11, 2, 14, 2, -2),
    Sketcher.Constraint("Symmetric", 9, 2, 16, 2, -2),
    Sketcher.Constraint("Symmetric", 13, 2, 18, 2, -2),
    Sketcher.Constraint("Vertical", 3, 2, 4, 2),
    Sketcher.Constraint("DistanceX", 1, 1, 1, 2, 135.0),
    Sketcher.Constraint("DistanceX", 8, 2, 8, 1, 20.0),
    Sketcher.Constraint("DistanceX", 10, 1, 10, 2, 5.0),
    Sketcher.Constraint("DistanceY", 0, 2, 0, 1, 8.0),
    Sketcher.Constraint("DistanceY", 13, 1, 13, 2, 3.0),
    Sketcher.Constraint("DistanceY", 9, 2, 9, 1, 7.5),
    Sketcher.Constraint("DistanceY", -1, 1, 0, 2, 52.0),
    Sketcher.Constraint("DistanceX", 8, 2, -1, 1, 59.0),
    Sketcher.Constraint("DistanceY", -1, 1, 9, 2, 25.0),
])
sketch10.setExpression("Constraints[76]", "Params.sketch10_width")
sketch10.setExpression("Constraints[77]", "Params.sketch10_width2")
sketch10.setExpression("Constraints[78]", "Params.sketch10_width3")
sketch10.setExpression("Constraints[79]", "Params.sketch10_height")
sketch10.setExpression("Constraints[80]", "Params.sketch10_height2")
pad3 = doc.addObject("PartDesign::Pad", "Pad002")
body.addObject(pad3)
pad3.Profile = sketch10
pad3.setExpression("Length", "Params.pad3_length")
doc.recompute()

fillet = doc.addObject("PartDesign::Fillet", "Fillet")
body.addObject(fillet)
fillet.Base = (pad3, edges_at(pad3, [
    (-110, -12, -60),
    (110, -12, -60),
    (110, -12, 60),
    (-110, -12, 60),
]))
fillet.setExpression("Radius", "Params.fillet_radius")
doc.recompute()

fillet2 = doc.addObject("PartDesign::Fillet", "Fillet001")
body.addObject(fillet2)
fillet2.Base = (fillet, edges_at(fillet, [
    (-108.5, -3.5, 45),
    (-108.5, -3.5, 5),
    (-108.5, -22, 5),
    (-108.5, -3.5, -5),
    (-108.5, -3.5, -45),
    (-108.5, -22, -45),
    (-108.5, -22, -5),
    (-85, 1.5, -40),
    (-100, 1.5, -40),
    (-85, 1.5, 40),
    (-100, 1.5, 40),
    (-15, 1.5, 51),
    (-15, 1.5, 35),
    (15, 1.5, 35),
    (15, 1.5, 51),
    (100, 1.5, 45),
    (85, 1.5, 5),
    (100, 1.5, 5),
    (15.297, 1, 0),
    (60, 1, -8.941),
    (60, 1, 8.941),
    (0, 1, -3.059),
    (-44.703, 1, -12),
    (44.703, 1, -12),
    (85, 1.5, -5),
    (100, 1.5, -5),
    (85, 1.5, -45),
    (100, 1.5, -45),
    (-15.297, 1, 0),
    (-60, 1, 8.941),
    (-60, 1, -8.941),
    (-15, 1.5, -35),
    (-15, 1.5, -51),
    (15, 1.5, -51),
    (15, 1.5, -35),
    (-44.703, 1, 12),
    (0, 1, 3.059),
    (44.703, 1, 12),
    (108.5, -3.5, 45),
    (108.5, -22, 45),
    (108.5, -3.5, 5),
    (108.5, -22, 5),
    (108.5, -3.5, -45),
    (108.5, -3.5, -5),
    (108.5, -22, -45),
    (108.5, -22, -5),
    (-107, 0, 0),
    (107, 0, 0),
    (-108.5, -22, 45),
]))
fillet2.setExpression("Radius", "Params.fillet2_radius")

doc.recompute()
